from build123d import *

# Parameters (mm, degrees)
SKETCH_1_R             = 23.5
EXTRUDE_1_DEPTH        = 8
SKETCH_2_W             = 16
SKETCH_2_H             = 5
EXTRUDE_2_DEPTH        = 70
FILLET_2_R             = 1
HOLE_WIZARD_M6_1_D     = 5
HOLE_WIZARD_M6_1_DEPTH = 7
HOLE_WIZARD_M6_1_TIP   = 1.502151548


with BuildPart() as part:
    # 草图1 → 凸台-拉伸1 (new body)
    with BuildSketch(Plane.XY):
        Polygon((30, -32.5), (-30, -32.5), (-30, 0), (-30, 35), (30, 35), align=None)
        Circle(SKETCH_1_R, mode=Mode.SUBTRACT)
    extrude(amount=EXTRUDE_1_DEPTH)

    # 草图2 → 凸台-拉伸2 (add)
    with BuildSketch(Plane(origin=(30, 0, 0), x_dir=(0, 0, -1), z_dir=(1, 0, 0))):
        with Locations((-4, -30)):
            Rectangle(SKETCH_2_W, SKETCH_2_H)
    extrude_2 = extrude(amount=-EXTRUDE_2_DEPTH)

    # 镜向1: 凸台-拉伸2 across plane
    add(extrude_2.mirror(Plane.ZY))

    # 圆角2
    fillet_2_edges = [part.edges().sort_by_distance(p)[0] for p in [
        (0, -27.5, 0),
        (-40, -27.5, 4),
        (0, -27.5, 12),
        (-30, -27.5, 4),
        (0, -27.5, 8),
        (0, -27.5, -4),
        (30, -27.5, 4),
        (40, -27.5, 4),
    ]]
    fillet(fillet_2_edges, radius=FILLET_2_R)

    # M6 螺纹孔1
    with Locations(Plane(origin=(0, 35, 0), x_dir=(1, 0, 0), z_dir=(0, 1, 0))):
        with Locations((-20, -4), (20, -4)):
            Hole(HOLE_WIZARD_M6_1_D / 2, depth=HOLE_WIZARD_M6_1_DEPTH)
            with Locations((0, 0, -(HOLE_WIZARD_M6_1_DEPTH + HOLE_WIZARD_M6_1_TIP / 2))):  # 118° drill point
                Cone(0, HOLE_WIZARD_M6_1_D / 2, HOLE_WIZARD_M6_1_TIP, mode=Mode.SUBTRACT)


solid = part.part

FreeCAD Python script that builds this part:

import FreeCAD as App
import Part
import Sketcher

V = App.Vector


def edges_at(feature, points):
    """Names of the edges that pass closest to the given points."""
    edges = feature.Shape.Edges
    near = lambda p: min(range(len(edges)), key=lambda i: edges[i].distToShape(Part.Vertex(*p))[0])
    return sorted({f"Edge{near(p) + 1}" for p in points})

doc = App.newDocument("Part")
body = doc.addObject("PartDesign::Body", "Body")

sketch1 = body.newObject("Sketcher::SketchObject", "Sketch")
sketch1.AttachmentSupport = (doc.getObject("XY_Plane"), [""])
sketch1.MapMode = "FlatFace"
sketch1.addGeometry(Part.LineSegment(V(-30, -32, 0), V(30, -32, 0)), False)
sketch1.addGeometry(Part.LineSegment(V(30, -32, 0), V(30, 35, 0)), False)
sketch1.addGeometry(Part.LineSegment(V(30, 35, 0), V(-30, 35, 0)), False)
sketch1.addGeometry(Part.LineSegment(V(-30, 35, 0), V(-30, -32, 0)), False)
sketch1.addGeometry(Part.Circle(V(0, 0, 0), V(0, 0, 1), 24), False)
sketch1.addConstraint(Sketcher.Constraint("Coincident", 0, 2, 1, 1))
sketch1.addConstraint(Sketcher.Constraint("Coincident", 1, 2, 2, 1))
sketch1.addConstraint(Sketcher.Constraint("Coincident", 2, 2, 3, 1))
sketch1.addConstraint(Sketcher.Constraint("Coincident", 3, 2, 0, 1))
sketch1.addConstraint(Sketcher.Constraint("Horizontal", 0))
sketch1.addConstraint(Sketcher.Constraint("Vertical", 1))
sketch1.addConstraint(Sketcher.Constraint("Horizontal", 2))
sketch1.addConstraint(Sketcher.Constraint("Vertical", 3))
sketch1.addConstraint(Sketcher.Constraint("Coincident", 4, 3, -1, 1))
sketch1.addConstraint(Sketcher.Constraint("Diameter", 4, 47.0))
sketch1.addConstraint(Sketcher.Constraint("DistanceX", 0, 1, 0, 2, 60.0))
sketch1.addConstraint(Sketcher.Constraint("DistanceY", 1, 1, 1, 2, 67.5))
sketch1.addConstraint(Sketcher.Constraint("DistanceX", -1, 1, 0, 2, 30.0))
sketch1.addConstraint(Sketcher.Constraint("DistanceY", -1, 1, 1, 2, 35.0))
pad1 = body.newObject("PartDesign::Pad", "Pad")
pad1.Profile = sketch1
pad1.Length = 8

sketch2 = body.newObject("Sketcher::SketchObject", "Sketch001")
sketch2.AttachmentSupport = (doc.getObject("YZ_Plane"), [""])
sketch2.MapMode = "FlatFace"
sketch2.AttachmentOffset = App.Placement(V(0, 0, 30), App.Rotation())
sketch2.addGeometry(Part.LineSegment(V(-28, 12, 0), V(-32, 12, 0)), False)
sketch2.addGeometry(Part.LineSegment(V(-32, 12, 0), V(-32, -4, 0)), False)
sketch2.addGeometry(Part.LineSegment(V(-32, -4, 0), V(-28, -4, 0)), False)
sketch2.addGeometry(Part.LineSegment(V(-28, -4, 0), V(-28, 12, 0)), False)
sketch2.addConstraint(Sketcher.Constraint("Coincident", 0, 2, 1, 1))
sketch2.addConstraint(Sketcher.Constraint("Coincident", 1, 2, 2, 1))
sketch2.addConstraint(Sketcher.Constraint("Coincident", 2, 2, 3, 1))
sketch2.addConstraint(Sketcher.Constraint("Coincident", 3, 2, 0, 1))
sketch2.addConstraint(Sketcher.Constraint("Horizontal", 0))
sketch2.addConstraint(Sketcher.Constraint("Vertical", 1))
sketch2.addConstraint(Sketcher.Constraint("Horizontal", 2))
sketch2.addConstraint(Sketcher.Constraint("Vertical", 3))
sketch2.addConstraint(Sketcher.Constraint("DistanceX", 0, 2, 0, 1, 5.0))
sketch2.addConstraint(Sketcher.Constraint("DistanceY", 1, 2, 1, 1, 16.0))
sketch2.addConstraint(Sketcher.Constraint("DistanceY", -1, 1, 0, 2, 12.0))
sketch2.addConstraint(Sketcher.Constraint("DistanceX", 0, 2, -1, 1, 32.5))
pad2 = body.newObject("PartDesign::Pad", "Pad001")
pad2.Profile = sketch2
pad2.Length = 70
pad2.Reversed = True
doc.recompute()

mirrored = body.newObject("PartDesign::Mirrored", "Mirrored")
mirrored.Originals = [pad2]
mirrored.MirrorPlane = (doc.getObject("YZ_Plane"), [""])
body.Tip = mirrored
doc.recompute()

fillet = body.newObject("PartDesign::Fillet", "Fillet")
fillet.Base = (mirrored, edges_at(mirrored, [
    (0, -27.5, 0),
    (-40, -27.5, 4),
    (0, -27.5, 12),
    (-30, -27.5, 4),
    (0, -27.5, 8),
    (0, -27.5, -4),
    (30, -27.5, 4),
    (40, -27.5, 4),
]))
fillet.Radius = 1

sketch3 = body.newObject("Sketcher::SketchObject", "Sketch002")
sketch3.AttachmentSupport = (doc.getObject("XZ_Plane"), [""])
sketch3.MapMode = "FlatFace"
sketch3.AttachmentOffset = App.Placement(V(0, 0, -35), App.Rotation())
sketch3.addGeometry(Part.Circle(V(-20, 4, 0), V(0, 0, 1), 2.5), False)
sketch3.addGeometry(Part.Circle(V(20, 4, 0), V(0, 0, 1), 2.5), False)
sketch3.addConstraint(Sketcher.Constraint("Equal", 0, 1))
sketch3.addConstraint(Sketcher.Constraint("Symmetric", 0, 3, 1, 3, -2))
sketch3.addConstraint(Sketcher.Constraint("Diameter", 0, 5.0))
sketch3.addConstraint(Sketcher.Constraint("DistanceX", 0, 3, -1, 1, 20.0))
sketch3.addConstraint(Sketcher.Constraint("DistanceY", -1, 1, 0, 3, 4.0))
doc.recompute()
hole = body.newObject("PartDesign::Hole", "Hole")
hole.Profile = sketch3
hole.ThreadType = "None"
hole.Diameter = 5
hole.DepthType = "Dimension"
hole.Depth = 7
hole.DrillPoint = "Angled"
hole.DrillPointAngle = 118
hole.Reversed = True

doc.recompute()
